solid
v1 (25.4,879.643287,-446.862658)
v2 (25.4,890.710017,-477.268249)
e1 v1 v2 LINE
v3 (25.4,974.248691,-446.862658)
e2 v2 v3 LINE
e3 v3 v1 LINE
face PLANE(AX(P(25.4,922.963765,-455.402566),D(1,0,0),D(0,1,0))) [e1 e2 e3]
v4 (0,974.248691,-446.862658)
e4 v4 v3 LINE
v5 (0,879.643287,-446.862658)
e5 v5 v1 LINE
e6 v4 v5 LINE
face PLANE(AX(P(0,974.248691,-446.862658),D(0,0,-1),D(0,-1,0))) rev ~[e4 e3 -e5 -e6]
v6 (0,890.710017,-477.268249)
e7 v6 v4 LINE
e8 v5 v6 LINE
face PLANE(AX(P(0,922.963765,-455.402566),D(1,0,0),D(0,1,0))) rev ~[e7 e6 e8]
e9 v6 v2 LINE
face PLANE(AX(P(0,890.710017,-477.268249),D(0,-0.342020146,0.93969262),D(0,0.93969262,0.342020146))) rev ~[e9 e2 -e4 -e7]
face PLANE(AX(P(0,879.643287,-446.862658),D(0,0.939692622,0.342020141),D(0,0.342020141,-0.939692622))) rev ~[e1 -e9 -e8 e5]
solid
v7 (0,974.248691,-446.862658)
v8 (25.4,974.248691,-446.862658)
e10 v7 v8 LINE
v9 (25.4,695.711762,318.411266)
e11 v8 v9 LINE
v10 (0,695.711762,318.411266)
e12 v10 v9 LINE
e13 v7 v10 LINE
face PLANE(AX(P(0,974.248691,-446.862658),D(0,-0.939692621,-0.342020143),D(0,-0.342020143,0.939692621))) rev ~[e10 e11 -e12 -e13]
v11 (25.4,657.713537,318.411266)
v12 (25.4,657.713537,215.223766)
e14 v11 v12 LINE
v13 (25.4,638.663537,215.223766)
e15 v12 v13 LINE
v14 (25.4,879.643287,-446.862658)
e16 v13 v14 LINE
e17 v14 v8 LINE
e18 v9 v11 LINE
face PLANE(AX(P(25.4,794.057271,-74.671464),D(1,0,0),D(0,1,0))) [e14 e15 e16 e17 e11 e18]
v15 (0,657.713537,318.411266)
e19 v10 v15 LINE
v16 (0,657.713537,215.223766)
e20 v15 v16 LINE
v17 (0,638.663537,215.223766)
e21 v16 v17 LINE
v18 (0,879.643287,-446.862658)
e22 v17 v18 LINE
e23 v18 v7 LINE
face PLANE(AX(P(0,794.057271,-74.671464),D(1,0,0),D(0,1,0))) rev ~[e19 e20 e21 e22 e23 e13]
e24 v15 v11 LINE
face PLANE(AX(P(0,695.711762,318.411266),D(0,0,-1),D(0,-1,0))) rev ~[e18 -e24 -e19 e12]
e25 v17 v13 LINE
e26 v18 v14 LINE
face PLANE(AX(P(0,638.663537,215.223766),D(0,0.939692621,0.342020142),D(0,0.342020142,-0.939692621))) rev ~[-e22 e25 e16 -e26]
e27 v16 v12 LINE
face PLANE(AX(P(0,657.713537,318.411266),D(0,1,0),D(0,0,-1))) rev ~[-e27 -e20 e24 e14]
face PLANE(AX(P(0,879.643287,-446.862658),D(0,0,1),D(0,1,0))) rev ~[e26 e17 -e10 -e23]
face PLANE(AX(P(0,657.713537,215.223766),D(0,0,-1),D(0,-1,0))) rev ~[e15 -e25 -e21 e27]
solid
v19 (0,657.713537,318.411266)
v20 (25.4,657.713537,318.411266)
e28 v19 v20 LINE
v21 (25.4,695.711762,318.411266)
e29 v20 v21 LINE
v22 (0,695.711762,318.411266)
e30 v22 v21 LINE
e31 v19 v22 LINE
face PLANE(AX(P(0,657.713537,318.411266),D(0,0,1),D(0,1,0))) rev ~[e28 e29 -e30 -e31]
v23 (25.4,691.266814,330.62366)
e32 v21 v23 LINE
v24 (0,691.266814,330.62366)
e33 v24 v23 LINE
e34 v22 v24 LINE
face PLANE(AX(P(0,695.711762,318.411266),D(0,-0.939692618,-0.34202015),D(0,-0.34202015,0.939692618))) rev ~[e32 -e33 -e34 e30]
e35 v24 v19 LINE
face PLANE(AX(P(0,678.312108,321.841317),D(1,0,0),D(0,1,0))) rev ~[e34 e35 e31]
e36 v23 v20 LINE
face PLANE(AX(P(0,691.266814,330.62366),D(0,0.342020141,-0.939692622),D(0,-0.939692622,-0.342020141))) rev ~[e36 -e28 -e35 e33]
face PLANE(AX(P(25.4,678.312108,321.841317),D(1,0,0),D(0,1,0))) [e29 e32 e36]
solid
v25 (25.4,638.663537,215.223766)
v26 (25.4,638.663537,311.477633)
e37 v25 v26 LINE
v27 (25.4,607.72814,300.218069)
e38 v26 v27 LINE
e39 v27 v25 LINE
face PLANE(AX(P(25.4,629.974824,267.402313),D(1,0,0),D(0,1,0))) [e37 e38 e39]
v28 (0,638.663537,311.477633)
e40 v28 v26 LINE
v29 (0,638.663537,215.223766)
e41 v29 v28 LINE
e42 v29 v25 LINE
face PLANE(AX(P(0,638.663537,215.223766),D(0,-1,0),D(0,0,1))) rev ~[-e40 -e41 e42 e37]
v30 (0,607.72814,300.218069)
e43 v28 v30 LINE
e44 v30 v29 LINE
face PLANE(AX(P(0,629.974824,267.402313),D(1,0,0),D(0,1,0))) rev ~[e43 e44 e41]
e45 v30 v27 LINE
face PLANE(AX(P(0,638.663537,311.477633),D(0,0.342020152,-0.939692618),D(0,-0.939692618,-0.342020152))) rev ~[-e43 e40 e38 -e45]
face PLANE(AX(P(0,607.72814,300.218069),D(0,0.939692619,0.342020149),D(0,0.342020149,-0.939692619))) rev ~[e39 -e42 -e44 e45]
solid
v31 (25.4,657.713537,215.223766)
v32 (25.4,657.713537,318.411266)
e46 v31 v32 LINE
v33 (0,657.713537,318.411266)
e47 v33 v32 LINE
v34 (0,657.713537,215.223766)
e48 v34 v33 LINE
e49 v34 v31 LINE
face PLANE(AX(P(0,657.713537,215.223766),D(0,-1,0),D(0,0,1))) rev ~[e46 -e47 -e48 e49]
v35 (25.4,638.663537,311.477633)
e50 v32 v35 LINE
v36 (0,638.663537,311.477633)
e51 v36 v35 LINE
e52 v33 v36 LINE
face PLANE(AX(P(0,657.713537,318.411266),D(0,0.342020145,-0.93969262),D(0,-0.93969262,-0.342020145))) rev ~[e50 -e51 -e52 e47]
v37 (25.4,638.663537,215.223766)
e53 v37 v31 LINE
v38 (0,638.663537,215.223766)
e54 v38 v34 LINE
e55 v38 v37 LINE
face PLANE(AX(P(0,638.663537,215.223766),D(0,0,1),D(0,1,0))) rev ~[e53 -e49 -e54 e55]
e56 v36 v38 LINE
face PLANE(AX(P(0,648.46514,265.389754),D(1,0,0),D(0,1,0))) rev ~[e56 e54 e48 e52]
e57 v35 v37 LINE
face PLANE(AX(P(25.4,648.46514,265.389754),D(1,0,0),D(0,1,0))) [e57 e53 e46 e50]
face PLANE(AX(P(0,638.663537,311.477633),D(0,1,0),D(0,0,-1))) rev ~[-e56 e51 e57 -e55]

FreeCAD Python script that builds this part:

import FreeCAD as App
import Part
import Sketcher
Q = App.Units.Quantity

doc = App.newDocument("Part")
body = doc.addObject("PartDesign::Body", "Body")

sketch1 = body.newObject("Sketcher::SketchObject", "Sketch")
sketch1.AttachmentSupport = (doc.getObject("YZ_Plane"), [""])
sketch1.MapMode = "FlatFace"
sketch1.addGeometry(Part.LineSegment(App.Vector(691, 331, 0), App.Vector(658, 318, 0)), False)
sketch1.addGeometry(Part.LineSegment(App.Vector(658, 318, 0), App.Vector(696, 318, 0)), False)
sketch1.addGeometry(Part.LineSegment(App.Vector(696, 318, 0), App.Vector(691, 331, 0)), False)
sketch1.addConstraint(Sketcher.Constraint("Coincident", 0, 2, 1, 1))
sketch1.addConstraint(Sketcher.Constraint("Coincident", 1, 2, 2, 1))
sketch1.addConstraint(Sketcher.Constraint("Coincident", 2, 2, 0, 1))
sketch1.addConstraint(Sketcher.Constraint("Horizontal", 1))
sketch1.addConstraint(Sketcher.Constraint("Perpendicular", 0, 2))
sketch1.addConstraint(Sketcher.Constraint("Angle", 0, Q("-160 deg")))
sketch1.addConstraint(Sketcher.Constraint("Distance", 0, Q("35.706652 mm")))
sketch1.addConstraint(Sketcher.Constraint("DistanceX", -1, 1, 1, 2, Q("695.711762 mm")))
sketch1.addConstraint(Sketcher.Constraint("DistanceY", -1, 1, 2, 2, Q("330.62366 mm")))
pad1 = body.newObject("PartDesign::Pad", "Pad")
pad1.Profile = sketch1
pad1.Length = Q("1 in")
body2 = doc.addObject("PartDesign::Body", "Body001")

sketch2 = body2.newObject("Sketcher::SketchObject", "Sketch001")
sketch2.AttachmentSupport = (doc.getObject("YZ_Plane001"), [""])
sketch2.MapMode = "FlatFace"
sketch2.addGeometry(Part.LineSegment(App.Vector(608, 300, 0), App.Vector(639, 215, 0)), False)
sketch2.addGeometry(Part.LineSegment(App.Vector(639, 215, 0), App.Vector(639, 311, 0)), False)
sketch2.addGeometry(Part.LineSegment(App.Vector(639, 311, 0), App.Vector(608, 300, 0)), False)
sketch2.addConstraint(Sketcher.Constraint("Coincident", 0, 2, 1, 1))
sketch2.addConstraint(Sketcher.Constraint("Coincident", 1, 2, 2, 1))
sketch2.addConstraint(Sketcher.Constraint("Coincident", 2, 2, 0, 1))
sketch2.addConstraint(Sketcher.Constraint("Vertical", 1))
sketch2.addConstraint(Sketcher.Constraint("Perpendicular", 0, 2))
sketch2.addConstraint(Sketcher.Constraint("Angle", 0, Q("-70 deg")))
sketch2.addConstraint(Sketcher.Constraint("Distance", 0, Q("90.449048 mm")))
sketch2.addConstraint(Sketcher.Constraint("DistanceX", -1, 1, 2, 2, Q("607.72814 mm")))
sketch2.addConstraint(Sketcher.Constraint("DistanceY", -1, 1, 2, 2, Q("300.218069 mm")))
pad2 = body2.newObject("PartDesign::Pad", "Pad001")
pad2.Profile = sketch2
pad2.Length = Q("1 in")
body3 = doc.addObject("PartDesign::Body", "Body002")

sketch3 = body3.newObject("Sketcher::SketchObject", "Sketch002")
sketch3.AttachmentSupport = (doc.getObject("YZ_Plane002"), [""])
sketch3.MapMode = "FlatFace"
sketch3.addGeometry(Part.LineSegment(App.Vector(974, -447, 0), App.Vector(880, -447, 0)), False)
sketch3.addGeometry(Part.LineSegment(App.Vector(880, -447, 0), App.Vector(891, -477, 0)), False)
sketch3.addGeometry(Part.LineSegment(App.Vector(891, -477, 0), App.Vector(974, -447, 0)), False)
sketch3.addConstraint(Sketcher.Constraint("Coincident", 0, 2, 1, 1))
sketch3.addConstraint(Sketcher.Constraint("Coincident", 1, 2, 2, 1))
sketch3.addConstraint(Sketcher.Constraint("Coincident", 2, 2, 0, 1))
sketch3.addConstraint(Sketcher.Constraint("Horizontal", 0))
sketch3.addConstraint(Sketcher.Constraint("Perpendicular", 1, 2))
sketch3.addConstraint(Sketcher.Constraint("Angle", 1, Q("-70 deg")))
sketch3.addConstraint(Sketcher.Constraint("Distance", 2, Q("3.5 in")))
sketch3.addConstraint(Sketcher.Constraint("DistanceY", 0, 2, -1, 1, Q("446.862658 mm")))
sketch3.addConstraint(Sketcher.Constraint("DistanceX", -1, 1, 2, 2, Q("974.248691 mm")))
pad3 = body3.newObject("PartDesign::Pad", "Pad002")
pad3.Profile = sketch3
pad3.Length = Q("1 in")
body4 = doc.addObject("PartDesign::Body", "Body003")

sketch4 = body4.newObject("Sketcher::SketchObject", "Sketch003")
sketch4.AttachmentSupport = (doc.getObject("YZ_Plane003"), [""])
sketch4.MapMode = "FlatFace"
sketch4.addGeometry(Part.LineSegment(App.Vector(639, 311, 0), App.Vector(639, 215, 0)), False)
sketch4.addGeometry(Part.LineSegment(App.Vector(639, 215, 0), App.Vector(658, 215, 0)), False)
sketch4.addGeometry(Part.LineSegment(App.Vector(658, 215, 0), App.Vector(658, 318, 0)), False)
sketch4.addGeometry(Part.LineSegment(App.Vector(658, 318, 0), App.Vector(639, 311, 0)), False)
sketch4.addConstraint(Sketcher.Constraint("Coincident", 0, 2, 1, 1))
sketch4.addConstraint(Sketcher.Constraint("Coincident", 1, 2, 2, 1))
sketch4.addConstraint(Sketcher.Constraint("Coincident", 2, 2, 3, 1))
sketch4.addConstraint(Sketcher.Constraint("Coincident", 3, 2, 0, 1))
sketch4.addConstraint(Sketcher.Constraint("Vertical", 0))
sketch4.addConstraint(Sketcher.Constraint("Horizontal", 1))
sketch4.addConstraint(Sketcher.Constraint("Vertical", 2))
sketch4.addConstraint(Sketcher.Constraint("Angle", 3, Q("-160 deg")))
sketch4.addConstraint(Sketcher.Constraint("DistanceX", 1, 1, 1, 2, Q("0.75 in")))
sketch4.addConstraint(Sketcher.Constraint("DistanceY", 2, 1, 2, 2, Q("4.0625 in")))
sketch4.addConstraint(Sketcher.Constraint("DistanceX", -1, 1, 0, 2, Q("638.663537 mm")))
sketch4.addConstraint(Sketcher.Constraint("DistanceY", -1, 1, 0, 2, Q("215.223766 mm")))
pad4 = body4.newObject("PartDesign::Pad", "Pad003")
pad4.Profile = sketch4
pad4.Length = Q("1 in")
body5 = doc.addObject("PartDesign::Body", "Body004")

sketch5 = body5.newObject("Sketcher::SketchObject", "Sketch004")
sketch5.AttachmentSupport = (doc.getObject("YZ_Plane004"), [""])
sketch5.MapMode = "FlatFace"
sketch5.addGeometry(Part.LineSegment(App.Vector(658, 215, 0), App.Vector(639, 215, 0)), False)
sketch5.addGeometry(Part.LineSegment(App.Vector(639, 215, 0), App.Vector(880, -447, 0)), False)
sketch5.addGeometry(Part.LineSegment(App.Vector(880, -447, 0), App.Vector(974, -447, 0)), False)
sketch5.addGeometry(Part.LineSegment(App.Vector(974, -447, 0), App.Vector(696, 318, 0)), False)
sketch5.addGeometry(Part.LineSegment(App.Vector(696, 318, 0), App.Vector(658, 318, 0)), False)
sketch5.addGeometry(Part.LineSegment(App.Vector(658, 318, 0), App.Vector(658, 215, 0)), False)
sketch5.addConstraint(Sketcher.Constraint("Coincident", 0, 2, 1, 1))
sketch5.addConstraint(Sketcher.Constraint("Coincident", 1, 2, 2, 1))
sketch5.addConstraint(Sketcher.Constraint("Coincident", 2, 2, 3, 1))
sketch5.addConstraint(Sketcher.Constraint("Coincident", 3, 2, 4, 1))
sketch5.addConstraint(Sketcher.Constraint("Coincident", 4, 2, 5, 1))
sketch5.addConstraint(Sketcher.Constraint("Coincident", 5, 2, 0, 1))
sketch5.addConstraint(Sketcher.Constraint("Horizontal", 0))
sketch5.addConstraint(Sketcher.Constraint("Horizontal", 2))
sketch5.addConstraint(Sketcher.Constraint("Horizontal", 4))
sketch5.addConstraint(Sketcher.Constraint("Vertical", 5))
sketch5.addConstraint(Sketcher.Constraint("Parallel", 1, 3))
sketch5.addConstraint(Sketcher.Constraint("Angle", 1, Q("-70 deg")))
sketch5.addConstraint(Sketcher.Constraint("DistanceX", 0, 2, 0, 1, Q("0.75 in")))
sketch5.addConstraint(Sketcher.Constraint("DistanceY", 5, 2, 5, 1, Q("4.0625 in")))
sketch5.addConstraint(Sketcher.Constraint("Distance", 3, Q("32.0625 in")))
sketch5.addConstraint(Sketcher.Constraint("DistanceX", 2, 1, 2, 2, Q("94.605404 mm")))
sketch5.addConstraint(Sketcher.Constraint("DistanceY", 1, 2, -1, 1, Q("446.862658 mm")))
sketch5.addConstraint(Sketcher.Constraint("DistanceX", -1, 1, 2, 2, Q("974.248691 mm")))
pad5 = body5.newObject("PartDesign::Pad", "Pad004")
pad5.Profile = sketch5
pad5.Length = Q("1 in")

doc.recompute()
